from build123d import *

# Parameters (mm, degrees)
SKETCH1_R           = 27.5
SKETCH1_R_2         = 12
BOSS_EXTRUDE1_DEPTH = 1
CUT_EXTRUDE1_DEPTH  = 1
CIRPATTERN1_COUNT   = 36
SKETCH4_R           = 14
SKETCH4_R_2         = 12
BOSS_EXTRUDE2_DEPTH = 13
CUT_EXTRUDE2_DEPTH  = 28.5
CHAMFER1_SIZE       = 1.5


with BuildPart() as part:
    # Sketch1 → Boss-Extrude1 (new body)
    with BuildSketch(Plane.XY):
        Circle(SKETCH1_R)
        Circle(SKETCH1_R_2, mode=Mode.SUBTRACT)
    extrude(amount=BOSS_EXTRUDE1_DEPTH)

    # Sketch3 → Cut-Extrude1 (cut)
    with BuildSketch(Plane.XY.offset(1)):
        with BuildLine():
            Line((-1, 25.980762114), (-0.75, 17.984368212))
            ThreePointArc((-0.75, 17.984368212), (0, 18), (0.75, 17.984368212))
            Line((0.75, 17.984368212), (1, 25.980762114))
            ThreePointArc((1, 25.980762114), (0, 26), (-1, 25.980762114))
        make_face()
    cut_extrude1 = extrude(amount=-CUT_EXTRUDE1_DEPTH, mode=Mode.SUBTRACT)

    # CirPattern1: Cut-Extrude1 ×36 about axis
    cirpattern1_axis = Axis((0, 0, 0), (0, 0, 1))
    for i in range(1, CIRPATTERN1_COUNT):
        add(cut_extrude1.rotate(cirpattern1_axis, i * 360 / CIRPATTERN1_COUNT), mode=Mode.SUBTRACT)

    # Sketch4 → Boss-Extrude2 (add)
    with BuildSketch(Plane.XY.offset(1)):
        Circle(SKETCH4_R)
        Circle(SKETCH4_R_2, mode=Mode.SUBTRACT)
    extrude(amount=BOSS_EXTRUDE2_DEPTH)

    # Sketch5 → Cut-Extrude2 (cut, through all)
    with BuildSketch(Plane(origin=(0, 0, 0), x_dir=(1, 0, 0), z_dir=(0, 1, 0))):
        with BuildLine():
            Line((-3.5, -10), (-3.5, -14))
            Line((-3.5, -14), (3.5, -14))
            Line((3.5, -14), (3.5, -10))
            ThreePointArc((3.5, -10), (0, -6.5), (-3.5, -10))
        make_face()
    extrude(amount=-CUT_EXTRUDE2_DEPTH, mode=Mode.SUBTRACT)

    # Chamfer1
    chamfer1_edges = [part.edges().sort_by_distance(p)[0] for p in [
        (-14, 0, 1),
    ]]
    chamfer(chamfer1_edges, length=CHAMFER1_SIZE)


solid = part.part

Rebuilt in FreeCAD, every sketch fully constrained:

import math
import FreeCAD as App
import Part
import Sketcher

V = App.Vector
Q = App.Units.Quantity


def edges_at(feature, points):
    """Names of the edges that pass closest to the given points."""
    edges = feature.Shape.Edges
    near = lambda p: min(range(len(edges)), key=lambda i: edges[i].distToShape(Part.Vertex(*p))[0])
    return sorted({f"Edge{near(p) + 1}" for p in points})

doc = App.newDocument("Part")
body = doc.addObject("PartDesign::Body", "Body")

sketch1 = body.newObject("Sketcher::SketchObject", "Sketch")
sketch1.AttachmentSupport = (doc.getObject("XY_Plane"), [""])
sketch1.MapMode = "FlatFace"
sketch1.addGeometry([
    Part.Circle(V(0, 0, 0), V(0, 0, 1), 27.5),
    Part.Circle(V(0, 0, 0), V(0, 0, 1), 12),
], False)
sketch1.addConstraint([
    Sketcher.Constraint("Coincident", 0, 3, -1, 1),
    Sketcher.Constraint("Coincident", 1, 3, -1, 1),
    Sketcher.Constraint("Diameter", 0, Q("55 mm")),
    Sketcher.Constraint("Diameter", 1, Q("24 mm")),
])
pad1 = body.newObject("PartDesign::Pad", "Pad")
pad1.Profile = sketch1
pad1.Length = 1

sketch2 = body.newObject("Sketcher::SketchObject", "Sketch001")
sketch2.AttachmentSupport = (doc.getObject("XY_Plane"), [""])
sketch2.MapMode = "FlatFace"
sketch2.AttachmentOffset = App.Placement(V(0, 0, 1), App.Rotation())
sketch2.addGeometry([
    Part.LineSegment(V(-1, 25.980762, 0), V(-0.75, 17.984368, 0)),
    Part.ArcOfCircle(Part.Circle(V(0, 0, 0), V(0, 0, 1), 18), math.radians(87.611984), math.radians(92.388016)),
    Part.LineSegment(V(0.75, 17.984368, 0), V(1, 25.980762, 0)),
    Part.ArcOfCircle(Part.Circle(V(0, -0.000001, 0), V(0, 0, 1), 26.000001), math.radians(87.795773), math.radians(92.204227)),
], False)
sketch2.addConstraint([
    Sketcher.Constraint("Coincident", 0, 2, 1, 2),
    Sketcher.Constraint("Coincident", 1, 1, 2, 1),
    Sketcher.Constraint("Coincident", 2, 2, 3, 1),
    Sketcher.Constraint("Coincident", 3, 2, 0, 1),
    Sketcher.Constraint("Coincident", 1, 3, -1, 1),
    Sketcher.Constraint("Coincident", 3, 3, -1, 1),
    Sketcher.Constraint("Horizontal", 0, 2, 1, 1),
    Sketcher.Constraint("Horizontal", 2, 2, 3, 2),
    Sketcher.Constraint("Radius", 1, Q("18 mm")),
    Sketcher.Constraint("Radius", 3, Q("26.000001 mm")),
    Sketcher.Constraint("DistanceX", -1, 1, 2, 2, Q("1 mm")),
    Sketcher.Constraint("DistanceX", 0, 2, 1, 1, Q("1.5 mm")),
])
pocket1 = body.newObject("PartDesign::Pocket", "Pocket")
pocket1.Profile = sketch2
pocket1.Length = 1
doc.recompute()

polarpattern = body.newObject("PartDesign::PolarPattern", "PolarPattern")
polarpattern.Originals = [pocket1]
polarpattern.Axis = (doc.getObject("Z_Axis"), [""])
polarpattern.Angle = 360
polarpattern.Occurrences = 36
body.Tip = polarpattern

sketch3 = body.newObject("Sketcher::SketchObject", "Sketch002")
sketch3.AttachmentSupport = (doc.getObject("XY_Plane"), [""])
sketch3.MapMode = "FlatFace"
sketch3.AttachmentOffset = App.Placement(V(0, 0, 1), App.Rotation())
sketch3.addGeometry([
    Part.Circle(V(0, 0, 0), V(0, 0, 1), 14),
    Part.Circle(V(0, 0, 0), V(0, 0, 1), 12),
], False)
sketch3.addConstraint([
    Sketcher.Constraint("Coincident", 0, 3, -1, 1),
    Sketcher.Constraint("Coincident", 1, 3, -1, 1),
    Sketcher.Constraint("Diameter", 0, Q("28 mm")),
    Sketcher.Constraint("Diameter", 1, Q("24 mm")),
])
pad2 = body.newObject("PartDesign::Pad", "Pad001")
pad2.Profile = sketch3
pad2.Length = 13

sketch4 = body.newObject("Sketcher::SketchObject", "Sketch003")
sketch4.AttachmentSupport = (doc.getObject("XZ_Plane"), [""])
sketch4.MapMode = "FlatFace"
sketch4.addGeometry([
    Part.LineSegment(V(-3.5, 10, 0), V(-3.5, 14, 0)),
    Part.LineSegment(V(-3.5, 14, 0), V(3.5, 14, 0)),
    Part.LineSegment(V(3.5, 14, 0), V(3.5, 10, 0)),
    Part.ArcOfCircle(Part.Circle(V(0, 10, 0), V(0, 0, 1), 3.5), math.radians(180), math.radians(360)),
], False)
sketch4.addConstraint([
    Sketcher.Constraint("Coincident", 0, 2, 1, 1),
    Sketcher.Constraint("Coincident", 1, 2, 2, 1),
    Sketcher.Constraint("Tangent", 2, 2, 3, 2),
    Sketcher.Constraint("Tangent", 3, 1, 0, 1),
    Sketcher.Constraint("Vertical", 0),
    Sketcher.Constraint("Horizontal", 1),
    Sketcher.Constraint("Vertical", 2),
    Sketcher.Constraint("PointOnObject", 3, 3, -2),
    Sketcher.Constraint("Radius", 3, Q("3.5 mm")),
    Sketcher.Constraint("DistanceY", 0, 1, 0, 2, Q("4 mm")),
    Sketcher.Constraint("DistanceY", -1, 1, 3, 3, Q("10 mm")),
])
pocket2 = body.newObject("PartDesign::Pocket", "Pocket001")
pocket2.Profile = sketch4
pocket2.Type = "ThroughAll"
pocket2.Reversed = True
doc.recompute()

chamfer = body.newObject("PartDesign::Chamfer", "Chamfer")
chamfer.Base = (pocket2, edges_at(pocket2, [(-14, 0, 1)]))
chamfer.Size = 1.5

doc.recompute()
